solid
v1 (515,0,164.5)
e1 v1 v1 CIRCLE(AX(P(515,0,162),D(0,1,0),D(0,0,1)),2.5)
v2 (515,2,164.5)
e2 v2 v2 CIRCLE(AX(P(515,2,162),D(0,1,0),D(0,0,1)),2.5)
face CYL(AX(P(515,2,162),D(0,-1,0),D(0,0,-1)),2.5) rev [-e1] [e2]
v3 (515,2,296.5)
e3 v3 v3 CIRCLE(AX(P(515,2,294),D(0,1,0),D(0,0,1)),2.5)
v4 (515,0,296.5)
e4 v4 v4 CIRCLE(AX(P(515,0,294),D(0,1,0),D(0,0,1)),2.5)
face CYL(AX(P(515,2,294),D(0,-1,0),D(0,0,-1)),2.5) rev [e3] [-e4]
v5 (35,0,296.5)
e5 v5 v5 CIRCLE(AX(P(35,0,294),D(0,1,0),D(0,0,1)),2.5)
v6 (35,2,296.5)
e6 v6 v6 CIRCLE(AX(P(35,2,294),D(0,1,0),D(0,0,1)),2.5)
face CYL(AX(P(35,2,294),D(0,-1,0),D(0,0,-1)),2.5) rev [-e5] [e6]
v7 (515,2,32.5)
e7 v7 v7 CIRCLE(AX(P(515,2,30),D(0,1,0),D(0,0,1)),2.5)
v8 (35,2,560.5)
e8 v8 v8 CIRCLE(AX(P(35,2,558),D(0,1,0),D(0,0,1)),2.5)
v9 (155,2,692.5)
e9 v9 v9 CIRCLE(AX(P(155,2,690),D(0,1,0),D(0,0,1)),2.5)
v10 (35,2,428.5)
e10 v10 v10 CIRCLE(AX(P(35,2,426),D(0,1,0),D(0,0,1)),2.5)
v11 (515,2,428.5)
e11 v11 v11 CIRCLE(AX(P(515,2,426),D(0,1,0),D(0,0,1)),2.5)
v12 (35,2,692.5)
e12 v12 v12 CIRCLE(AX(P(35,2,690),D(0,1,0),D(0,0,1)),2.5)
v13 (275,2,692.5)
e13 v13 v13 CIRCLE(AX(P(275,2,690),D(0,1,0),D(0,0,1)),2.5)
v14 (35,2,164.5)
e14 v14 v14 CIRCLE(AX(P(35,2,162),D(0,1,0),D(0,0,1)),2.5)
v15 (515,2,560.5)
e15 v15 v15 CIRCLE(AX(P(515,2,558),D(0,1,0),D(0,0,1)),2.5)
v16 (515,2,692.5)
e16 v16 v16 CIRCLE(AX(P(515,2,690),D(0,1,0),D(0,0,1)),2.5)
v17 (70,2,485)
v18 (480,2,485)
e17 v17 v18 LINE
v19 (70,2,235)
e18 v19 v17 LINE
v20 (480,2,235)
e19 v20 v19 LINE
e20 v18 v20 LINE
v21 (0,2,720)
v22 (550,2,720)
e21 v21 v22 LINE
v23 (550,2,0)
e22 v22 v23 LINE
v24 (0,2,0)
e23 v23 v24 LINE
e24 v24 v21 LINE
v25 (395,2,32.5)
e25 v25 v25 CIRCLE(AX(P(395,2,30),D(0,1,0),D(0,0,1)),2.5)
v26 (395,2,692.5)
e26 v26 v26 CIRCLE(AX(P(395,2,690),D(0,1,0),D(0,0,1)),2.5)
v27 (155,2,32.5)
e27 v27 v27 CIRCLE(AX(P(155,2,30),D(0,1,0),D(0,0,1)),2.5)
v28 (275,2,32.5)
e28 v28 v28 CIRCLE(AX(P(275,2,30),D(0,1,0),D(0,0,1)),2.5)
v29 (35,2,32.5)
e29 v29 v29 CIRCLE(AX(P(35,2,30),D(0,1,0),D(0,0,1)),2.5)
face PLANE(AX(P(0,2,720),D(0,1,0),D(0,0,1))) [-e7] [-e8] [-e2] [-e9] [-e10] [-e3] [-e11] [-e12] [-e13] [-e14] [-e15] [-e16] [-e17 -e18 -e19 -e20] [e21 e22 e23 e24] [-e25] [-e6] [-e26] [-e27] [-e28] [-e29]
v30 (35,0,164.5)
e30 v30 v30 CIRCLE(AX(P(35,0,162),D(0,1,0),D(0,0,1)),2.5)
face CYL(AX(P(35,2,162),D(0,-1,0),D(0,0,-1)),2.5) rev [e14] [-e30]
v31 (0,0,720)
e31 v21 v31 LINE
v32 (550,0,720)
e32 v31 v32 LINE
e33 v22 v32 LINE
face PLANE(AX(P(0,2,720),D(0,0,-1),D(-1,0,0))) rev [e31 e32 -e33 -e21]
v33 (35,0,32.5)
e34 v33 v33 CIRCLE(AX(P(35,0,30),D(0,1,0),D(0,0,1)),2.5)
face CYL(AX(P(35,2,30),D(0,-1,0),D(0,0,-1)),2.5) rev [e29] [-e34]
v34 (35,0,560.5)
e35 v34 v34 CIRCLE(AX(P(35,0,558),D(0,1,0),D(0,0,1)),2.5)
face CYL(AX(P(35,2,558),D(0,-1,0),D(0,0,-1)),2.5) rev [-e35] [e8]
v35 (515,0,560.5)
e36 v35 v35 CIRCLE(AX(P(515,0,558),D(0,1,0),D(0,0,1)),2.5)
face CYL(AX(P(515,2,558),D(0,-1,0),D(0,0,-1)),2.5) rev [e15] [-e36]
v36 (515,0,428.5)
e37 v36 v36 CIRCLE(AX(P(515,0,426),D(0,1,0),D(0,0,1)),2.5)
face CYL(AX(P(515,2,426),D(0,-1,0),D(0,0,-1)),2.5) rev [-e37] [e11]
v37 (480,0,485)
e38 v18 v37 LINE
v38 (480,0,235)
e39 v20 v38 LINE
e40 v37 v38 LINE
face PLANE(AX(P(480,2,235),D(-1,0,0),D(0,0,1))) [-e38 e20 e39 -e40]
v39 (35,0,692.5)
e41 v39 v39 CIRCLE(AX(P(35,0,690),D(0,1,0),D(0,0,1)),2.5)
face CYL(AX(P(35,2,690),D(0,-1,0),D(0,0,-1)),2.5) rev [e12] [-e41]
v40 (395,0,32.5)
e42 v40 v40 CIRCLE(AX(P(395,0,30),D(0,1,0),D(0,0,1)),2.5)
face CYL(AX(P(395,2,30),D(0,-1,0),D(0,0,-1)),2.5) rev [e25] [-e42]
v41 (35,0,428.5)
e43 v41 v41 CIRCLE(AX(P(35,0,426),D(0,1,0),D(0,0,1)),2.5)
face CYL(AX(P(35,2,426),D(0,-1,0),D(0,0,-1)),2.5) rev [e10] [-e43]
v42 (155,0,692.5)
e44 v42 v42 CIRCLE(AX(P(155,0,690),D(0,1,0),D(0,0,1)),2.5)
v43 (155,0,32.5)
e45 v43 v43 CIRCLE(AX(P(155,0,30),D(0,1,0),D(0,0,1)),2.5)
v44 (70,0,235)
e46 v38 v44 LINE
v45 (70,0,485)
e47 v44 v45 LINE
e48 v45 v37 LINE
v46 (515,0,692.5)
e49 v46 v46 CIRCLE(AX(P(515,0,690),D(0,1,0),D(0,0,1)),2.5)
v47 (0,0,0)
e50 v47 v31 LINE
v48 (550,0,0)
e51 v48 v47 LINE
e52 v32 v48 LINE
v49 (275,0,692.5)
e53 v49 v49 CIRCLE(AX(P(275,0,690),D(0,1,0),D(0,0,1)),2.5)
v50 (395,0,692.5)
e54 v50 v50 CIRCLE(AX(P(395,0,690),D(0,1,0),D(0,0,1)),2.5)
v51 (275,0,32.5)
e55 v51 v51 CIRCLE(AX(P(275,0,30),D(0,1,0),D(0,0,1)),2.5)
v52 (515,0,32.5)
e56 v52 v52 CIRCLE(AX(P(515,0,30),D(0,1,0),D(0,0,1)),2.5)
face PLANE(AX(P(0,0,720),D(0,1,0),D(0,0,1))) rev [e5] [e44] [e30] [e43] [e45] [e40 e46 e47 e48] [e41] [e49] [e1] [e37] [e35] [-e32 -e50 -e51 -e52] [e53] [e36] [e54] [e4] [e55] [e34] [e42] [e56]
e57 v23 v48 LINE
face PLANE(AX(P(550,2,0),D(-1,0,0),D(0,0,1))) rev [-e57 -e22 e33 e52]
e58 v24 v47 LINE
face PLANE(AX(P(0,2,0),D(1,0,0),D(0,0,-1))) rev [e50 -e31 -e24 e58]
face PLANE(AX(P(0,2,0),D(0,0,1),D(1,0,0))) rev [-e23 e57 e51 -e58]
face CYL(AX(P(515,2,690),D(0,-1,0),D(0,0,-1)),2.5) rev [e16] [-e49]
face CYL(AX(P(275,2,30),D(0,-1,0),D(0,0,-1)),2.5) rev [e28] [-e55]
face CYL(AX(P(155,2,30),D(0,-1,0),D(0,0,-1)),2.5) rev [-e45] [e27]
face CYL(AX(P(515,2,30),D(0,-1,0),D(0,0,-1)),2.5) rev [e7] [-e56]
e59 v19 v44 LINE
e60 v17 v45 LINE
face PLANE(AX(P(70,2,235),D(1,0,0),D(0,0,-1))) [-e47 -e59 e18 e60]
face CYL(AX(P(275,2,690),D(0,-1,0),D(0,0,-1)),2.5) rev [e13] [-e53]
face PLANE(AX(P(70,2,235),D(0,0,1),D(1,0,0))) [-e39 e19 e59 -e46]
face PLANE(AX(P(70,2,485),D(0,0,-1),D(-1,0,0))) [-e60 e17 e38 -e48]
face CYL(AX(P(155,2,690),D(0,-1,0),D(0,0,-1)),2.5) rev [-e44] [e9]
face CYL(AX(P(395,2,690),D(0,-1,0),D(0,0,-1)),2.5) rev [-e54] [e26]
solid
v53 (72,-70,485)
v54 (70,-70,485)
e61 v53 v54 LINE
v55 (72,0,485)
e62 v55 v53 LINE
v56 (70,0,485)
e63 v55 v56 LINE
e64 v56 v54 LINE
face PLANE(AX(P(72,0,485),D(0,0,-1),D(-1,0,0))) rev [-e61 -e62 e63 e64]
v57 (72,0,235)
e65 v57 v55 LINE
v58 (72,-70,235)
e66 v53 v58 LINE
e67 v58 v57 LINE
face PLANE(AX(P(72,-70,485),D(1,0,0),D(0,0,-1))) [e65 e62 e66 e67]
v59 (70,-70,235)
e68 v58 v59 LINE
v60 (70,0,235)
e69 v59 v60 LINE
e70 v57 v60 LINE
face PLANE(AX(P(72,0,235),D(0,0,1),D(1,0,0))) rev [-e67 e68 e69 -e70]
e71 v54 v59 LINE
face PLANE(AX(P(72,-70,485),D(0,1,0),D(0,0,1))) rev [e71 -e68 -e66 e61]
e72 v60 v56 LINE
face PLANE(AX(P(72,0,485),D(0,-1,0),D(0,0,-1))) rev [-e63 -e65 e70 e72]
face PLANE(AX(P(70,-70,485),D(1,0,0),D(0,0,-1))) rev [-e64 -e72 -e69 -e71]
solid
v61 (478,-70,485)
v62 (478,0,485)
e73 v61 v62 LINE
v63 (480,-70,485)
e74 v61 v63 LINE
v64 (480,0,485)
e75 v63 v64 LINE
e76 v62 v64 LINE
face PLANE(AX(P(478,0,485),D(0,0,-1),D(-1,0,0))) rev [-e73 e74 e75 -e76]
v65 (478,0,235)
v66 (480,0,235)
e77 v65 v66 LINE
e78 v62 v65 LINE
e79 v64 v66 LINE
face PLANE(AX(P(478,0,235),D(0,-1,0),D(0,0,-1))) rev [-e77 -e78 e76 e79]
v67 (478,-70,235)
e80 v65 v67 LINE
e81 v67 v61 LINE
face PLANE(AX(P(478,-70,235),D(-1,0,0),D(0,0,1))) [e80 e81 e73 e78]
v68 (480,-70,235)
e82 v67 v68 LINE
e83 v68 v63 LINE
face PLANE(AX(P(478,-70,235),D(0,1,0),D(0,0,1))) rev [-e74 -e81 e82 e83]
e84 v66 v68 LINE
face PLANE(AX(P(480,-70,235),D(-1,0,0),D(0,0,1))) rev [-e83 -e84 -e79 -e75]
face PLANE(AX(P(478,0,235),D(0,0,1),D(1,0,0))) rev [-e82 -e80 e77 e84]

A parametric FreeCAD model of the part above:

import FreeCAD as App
import Part
import Sketcher
from FreeCAD import Vector


def add_polygon(sketch, points):
    """Adds a closed chain of lines whose ends are joined by coincident constraints."""
    first, n = sketch.GeometryCount, len(points)
    for a, b in zip(points, points[1:] + points[:1]):
        sketch.addGeometry(Part.LineSegment(App.Vector(*a, 0), App.Vector(*b, 0)), False)
    for i in range(n):
        sketch.addConstraint(Sketcher.Constraint("Coincident", first + i, 2, first + (i + 1) % n, 1))

doc = App.newDocument("Part")
body = doc.addObject("PartDesign::Body", "Body")

sketch1 = body.newObject("Sketcher::SketchObject", "Sketch")
sketch1.AttachmentSupport = (doc.getObject("XZ_Plane"), [""])
sketch1.MapMode = "FlatFace"
add_polygon(sketch1, [(0, 0), (0, 720), (550, 720), (550, 0)])
sketch1.addGeometry(Part.Circle(Vector(35, 690, 0), Vector(0, 0, 1), 2.5), False)
sketch1.addGeometry(Part.Circle(Vector(35, 558, 0), Vector(0, 0, 1), 2.5), False)
sketch1.addGeometry(Part.Circle(Vector(155, 690, 0), Vector(0, 0, 1), 2.5), False)
sketch1.addGeometry(Part.Circle(Vector(35, 426, 0), Vector(0, 0, 1), 2.5), False)
sketch1.addGeometry(Part.Circle(Vector(275, 690, 0), Vector(0, 0, 1), 2.5), False)
sketch1.addGeometry(Part.Circle(Vector(395, 690, 0), Vector(0, 0, 1), 2.5), False)
sketch1.addGeometry(Part.Circle(Vector(515, 690, 0), Vector(0, 0, 1), 2.5), False)
sketch1.addGeometry(Part.Circle(Vector(515, 558, 0), Vector(0, 0, 1), 2.5), False)
sketch1.addGeometry(Part.Circle(Vector(515, 426, 0), Vector(0, 0, 1), 2.5), False)
sketch1.addGeometry(Part.Circle(Vector(35, 294, 0), Vector(0, 0, 1), 2.5), False)
sketch1.addGeometry(Part.Circle(Vector(35, 162, 0), Vector(0, 0, 1), 2.5), False)
sketch1.addGeometry(Part.Circle(Vector(35, 30, 0), Vector(0, 0, 1), 2.5), False)
sketch1.addGeometry(Part.Circle(Vector(155, 30, 0), Vector(0, 0, 1), 2.5), False)
add_polygon(sketch1, [(480, 485), (70, 485), (70, 235), (480, 235)])
sketch1.addGeometry(Part.Circle(Vector(515, 294, 0), Vector(0, 0, 1), 2.5), False)
sketch1.addGeometry(Part.Circle(Vector(275, 30, 0), Vector(0, 0, 1), 2.5), False)
sketch1.addGeometry(Part.Circle(Vector(395, 30, 0), Vector(0, 0, 1), 2.5), False)
sketch1.addGeometry(Part.Circle(Vector(515, 162, 0), Vector(0, 0, 1), 2.5), False)
sketch1.addGeometry(Part.Circle(Vector(515, 30, 0), Vector(0, 0, 1), 2.5), False)
sketch1.addConstraint([
    Sketcher.Constraint("Vertical", 0),
    Sketcher.Constraint("Horizontal", 1),
    Sketcher.Constraint("Vertical", 2),
    Sketcher.Constraint("Horizontal", 3),
    Sketcher.Constraint("Horizontal", 17),
    Sketcher.Constraint("Vertical", 18),
    Sketcher.Constraint("Horizontal", 19),
    Sketcher.Constraint("Vertical", 20),
    Sketcher.Constraint("Coincident", 3, 2, -1, 1),
    Sketcher.Constraint("Equal", 4, 5),
    Sketcher.Constraint("Equal", 5, 6),
    Sketcher.Constraint("Equal", 6, 7),
    Sketcher.Constraint("Equal", 7, 8),
    Sketcher.Constraint("Equal", 8, 9),
    Sketcher.Constraint("Equal", 9, 10),
    Sketcher.Constraint("Equal", 10, 11),
    Sketcher.Constraint("Equal", 11, 12),
    Sketcher.Constraint("Equal", 12, 13),
    Sketcher.Constraint("Equal", 13, 14),
    Sketcher.Constraint("Equal", 14, 15),
    Sketcher.Constraint("Equal", 15, 16),
    Sketcher.Constraint("Equal", 16, 21),
    Sketcher.Constraint("Equal", 21, 22),
    Sketcher.Constraint("Equal", 22, 23),
    Sketcher.Constraint("Equal", 23, 24),
    Sketcher.Constraint("Equal", 24, 25),
    Sketcher.Constraint("Horizontal", 4, 3, 6, 3),
    Sketcher.Constraint("Horizontal", 6, 3, 8, 3),
    Sketcher.Constraint("Horizontal", 8, 3, 9, 3),
    Sketcher.Constraint("Horizontal", 9, 3, 10, 3),
    Sketcher.Constraint("Horizontal", 5, 3, 11, 3),
    Sketcher.Constraint("Horizontal", 7, 3, 12, 3),
    Sketcher.Constraint("Horizontal", 15, 3, 16, 3),
    Sketcher.Constraint("Horizontal", 13, 3, 21, 3),
    Sketcher.Constraint("Horizontal", 16, 3, 22, 3),
    Sketcher.Constraint("Horizontal", 22, 3, 23, 3),
    Sketcher.Constraint("Horizontal", 14, 3, 24, 3),
    Sketcher.Constraint("Horizontal", 23, 3, 25, 3),
    Sketcher.Constraint("Vertical", 4, 3, 5, 3),
    Sketcher.Constraint("Vertical", 5, 3, 7, 3),
    Sketcher.Constraint("Vertical", 10, 3, 11, 3),
    Sketcher.Constraint("Vertical", 11, 3, 12, 3),
    Sketcher.Constraint("Vertical", 7, 3, 13, 3),
    Sketcher.Constraint("Vertical", 13, 3, 14, 3),
    Sketcher.Constraint("Vertical", 14, 3, 15, 3),
    Sketcher.Constraint("Vertical", 6, 3, 16, 3),
    Sketcher.Constraint("Vertical", 12, 3, 21, 3),
    Sketcher.Constraint("Vertical", 8, 3, 22, 3),
    Sketcher.Constraint("Vertical", 9, 3, 23, 3),
    Sketcher.Constraint("Vertical", 21, 3, 24, 3),
    Sketcher.Constraint("Vertical", 24, 3, 25, 3),
    Sketcher.Constraint("Diameter", 4, 5.0),
    Sketcher.Constraint("DistanceX", 1, 1, 1, 2, 550.0),
    Sketcher.Constraint("DistanceX", 17, 2, 17, 1, 410.0),
    Sketcher.Constraint("DistanceY", 0, 1, 0, 2, 720.0),
    Sketcher.Constraint("DistanceY", 18, 2, 18, 1, 250.0),
    Sketcher.Constraint("DistanceX", -1, 1, 4, 3, 35.0),
    Sketcher.Constraint("DistanceY", -1, 1, 4, 3, 690.0),
    Sketcher.Constraint("DistanceY", -1, 1, 5, 3, 558.0),
    Sketcher.Constraint("DistanceX", -1, 1, 6, 3, 155.0),
    Sketcher.Constraint("DistanceY", -1, 1, 7, 3, 426.0),
    Sketcher.Constraint("DistanceX", -1, 1, 8, 3, 275.0),
    Sketcher.Constraint("DistanceX", -1, 1, 9, 3, 395.0),
    Sketcher.Constraint("DistanceX", -1, 1, 10, 3, 515.0),
    Sketcher.Constraint("DistanceY", -1, 1, 13, 3, 294.0),
    Sketcher.Constraint("DistanceY", -1, 1, 14, 3, 162.0),
    Sketcher.Constraint("DistanceY", -1, 1, 15, 3, 30.0),
    Sketcher.Constraint("DistanceX", -1, 1, 17, 2, 70.0),
    Sketcher.Constraint("DistanceY", -1, 1, 17, 2, 485.0),
])
pad1 = body.newObject("PartDesign::Pad", "Pad")
pad1.Profile = sketch1
pad1.Length = 2
pad1.Reversed = True
body2 = doc.addObject("PartDesign::Body", "Body001")

sketch2 = body2.newObject("Sketcher::SketchObject", "Sketch001")
sketch2.AttachmentSupport = (doc.getObject("YZ_Plane001"), [""])
sketch2.MapMode = "FlatFace"
sketch2.AttachmentOffset = App.Placement(Vector(0, 0, 70), App.Rotation())
add_polygon(sketch2, [(0, 485), (-70, 485), (-70, 235), (0, 235)])
sketch2.addConstraint([
    Sketcher.Constraint("Horizontal", 0),
    Sketcher.Constraint("Vertical", 1),
    Sketcher.Constraint("Horizontal", 2),
    Sketcher.Constraint("Vertical", 3),
    Sketcher.Constraint("PointOnObject", 2, 2, -2),
    Sketcher.Constraint("DistanceX", 0, 2, 0, 1, 70.0),
    Sketcher.Constraint("DistanceY", 1, 2, 1, 1, 250.0),
    Sketcher.Constraint("DistanceY", -1, 1, 0, 2, 485.0),
])
pad2 = body2.newObject("PartDesign::Pad", "Pad001")
pad2.Profile = sketch2
pad2.Length = 2
body3 = doc.addObject("PartDesign::Body", "Body002")

sketch3 = body3.newObject("Sketcher::SketchObject", "Sketch002")
sketch3.AttachmentSupport = (doc.getObject("YZ_Plane002"), [""])
sketch3.MapMode = "FlatFace"
sketch3.AttachmentOffset = App.Placement(Vector(0, 0, 480), App.Rotation())
add_polygon(sketch3, [(0, 235), (-70, 235), (-70, 485), (0, 485)])
sketch3.addConstraint([
    Sketcher.Constraint("Horizontal", 0),
    Sketcher.Constraint("Vertical", 1),
    Sketcher.Constraint("Horizontal", 2),
    Sketcher.Constraint("Vertical", 3),
    Sketcher.Constraint("PointOnObject", 2, 2, -2),
    Sketcher.Constraint("DistanceX", 0, 2, 0, 1, 70.0),
    Sketcher.Constraint("DistanceY", 1, 1, 1, 2, 250.0),
    Sketcher.Constraint("DistanceY", -1, 1, 0, 2, 235.0),
])
pad3 = body3.newObject("PartDesign::Pad", "Pad002")
pad3.Profile = sketch3
pad3.Length = 2
pad3.Reversed = True

doc.recompute()
